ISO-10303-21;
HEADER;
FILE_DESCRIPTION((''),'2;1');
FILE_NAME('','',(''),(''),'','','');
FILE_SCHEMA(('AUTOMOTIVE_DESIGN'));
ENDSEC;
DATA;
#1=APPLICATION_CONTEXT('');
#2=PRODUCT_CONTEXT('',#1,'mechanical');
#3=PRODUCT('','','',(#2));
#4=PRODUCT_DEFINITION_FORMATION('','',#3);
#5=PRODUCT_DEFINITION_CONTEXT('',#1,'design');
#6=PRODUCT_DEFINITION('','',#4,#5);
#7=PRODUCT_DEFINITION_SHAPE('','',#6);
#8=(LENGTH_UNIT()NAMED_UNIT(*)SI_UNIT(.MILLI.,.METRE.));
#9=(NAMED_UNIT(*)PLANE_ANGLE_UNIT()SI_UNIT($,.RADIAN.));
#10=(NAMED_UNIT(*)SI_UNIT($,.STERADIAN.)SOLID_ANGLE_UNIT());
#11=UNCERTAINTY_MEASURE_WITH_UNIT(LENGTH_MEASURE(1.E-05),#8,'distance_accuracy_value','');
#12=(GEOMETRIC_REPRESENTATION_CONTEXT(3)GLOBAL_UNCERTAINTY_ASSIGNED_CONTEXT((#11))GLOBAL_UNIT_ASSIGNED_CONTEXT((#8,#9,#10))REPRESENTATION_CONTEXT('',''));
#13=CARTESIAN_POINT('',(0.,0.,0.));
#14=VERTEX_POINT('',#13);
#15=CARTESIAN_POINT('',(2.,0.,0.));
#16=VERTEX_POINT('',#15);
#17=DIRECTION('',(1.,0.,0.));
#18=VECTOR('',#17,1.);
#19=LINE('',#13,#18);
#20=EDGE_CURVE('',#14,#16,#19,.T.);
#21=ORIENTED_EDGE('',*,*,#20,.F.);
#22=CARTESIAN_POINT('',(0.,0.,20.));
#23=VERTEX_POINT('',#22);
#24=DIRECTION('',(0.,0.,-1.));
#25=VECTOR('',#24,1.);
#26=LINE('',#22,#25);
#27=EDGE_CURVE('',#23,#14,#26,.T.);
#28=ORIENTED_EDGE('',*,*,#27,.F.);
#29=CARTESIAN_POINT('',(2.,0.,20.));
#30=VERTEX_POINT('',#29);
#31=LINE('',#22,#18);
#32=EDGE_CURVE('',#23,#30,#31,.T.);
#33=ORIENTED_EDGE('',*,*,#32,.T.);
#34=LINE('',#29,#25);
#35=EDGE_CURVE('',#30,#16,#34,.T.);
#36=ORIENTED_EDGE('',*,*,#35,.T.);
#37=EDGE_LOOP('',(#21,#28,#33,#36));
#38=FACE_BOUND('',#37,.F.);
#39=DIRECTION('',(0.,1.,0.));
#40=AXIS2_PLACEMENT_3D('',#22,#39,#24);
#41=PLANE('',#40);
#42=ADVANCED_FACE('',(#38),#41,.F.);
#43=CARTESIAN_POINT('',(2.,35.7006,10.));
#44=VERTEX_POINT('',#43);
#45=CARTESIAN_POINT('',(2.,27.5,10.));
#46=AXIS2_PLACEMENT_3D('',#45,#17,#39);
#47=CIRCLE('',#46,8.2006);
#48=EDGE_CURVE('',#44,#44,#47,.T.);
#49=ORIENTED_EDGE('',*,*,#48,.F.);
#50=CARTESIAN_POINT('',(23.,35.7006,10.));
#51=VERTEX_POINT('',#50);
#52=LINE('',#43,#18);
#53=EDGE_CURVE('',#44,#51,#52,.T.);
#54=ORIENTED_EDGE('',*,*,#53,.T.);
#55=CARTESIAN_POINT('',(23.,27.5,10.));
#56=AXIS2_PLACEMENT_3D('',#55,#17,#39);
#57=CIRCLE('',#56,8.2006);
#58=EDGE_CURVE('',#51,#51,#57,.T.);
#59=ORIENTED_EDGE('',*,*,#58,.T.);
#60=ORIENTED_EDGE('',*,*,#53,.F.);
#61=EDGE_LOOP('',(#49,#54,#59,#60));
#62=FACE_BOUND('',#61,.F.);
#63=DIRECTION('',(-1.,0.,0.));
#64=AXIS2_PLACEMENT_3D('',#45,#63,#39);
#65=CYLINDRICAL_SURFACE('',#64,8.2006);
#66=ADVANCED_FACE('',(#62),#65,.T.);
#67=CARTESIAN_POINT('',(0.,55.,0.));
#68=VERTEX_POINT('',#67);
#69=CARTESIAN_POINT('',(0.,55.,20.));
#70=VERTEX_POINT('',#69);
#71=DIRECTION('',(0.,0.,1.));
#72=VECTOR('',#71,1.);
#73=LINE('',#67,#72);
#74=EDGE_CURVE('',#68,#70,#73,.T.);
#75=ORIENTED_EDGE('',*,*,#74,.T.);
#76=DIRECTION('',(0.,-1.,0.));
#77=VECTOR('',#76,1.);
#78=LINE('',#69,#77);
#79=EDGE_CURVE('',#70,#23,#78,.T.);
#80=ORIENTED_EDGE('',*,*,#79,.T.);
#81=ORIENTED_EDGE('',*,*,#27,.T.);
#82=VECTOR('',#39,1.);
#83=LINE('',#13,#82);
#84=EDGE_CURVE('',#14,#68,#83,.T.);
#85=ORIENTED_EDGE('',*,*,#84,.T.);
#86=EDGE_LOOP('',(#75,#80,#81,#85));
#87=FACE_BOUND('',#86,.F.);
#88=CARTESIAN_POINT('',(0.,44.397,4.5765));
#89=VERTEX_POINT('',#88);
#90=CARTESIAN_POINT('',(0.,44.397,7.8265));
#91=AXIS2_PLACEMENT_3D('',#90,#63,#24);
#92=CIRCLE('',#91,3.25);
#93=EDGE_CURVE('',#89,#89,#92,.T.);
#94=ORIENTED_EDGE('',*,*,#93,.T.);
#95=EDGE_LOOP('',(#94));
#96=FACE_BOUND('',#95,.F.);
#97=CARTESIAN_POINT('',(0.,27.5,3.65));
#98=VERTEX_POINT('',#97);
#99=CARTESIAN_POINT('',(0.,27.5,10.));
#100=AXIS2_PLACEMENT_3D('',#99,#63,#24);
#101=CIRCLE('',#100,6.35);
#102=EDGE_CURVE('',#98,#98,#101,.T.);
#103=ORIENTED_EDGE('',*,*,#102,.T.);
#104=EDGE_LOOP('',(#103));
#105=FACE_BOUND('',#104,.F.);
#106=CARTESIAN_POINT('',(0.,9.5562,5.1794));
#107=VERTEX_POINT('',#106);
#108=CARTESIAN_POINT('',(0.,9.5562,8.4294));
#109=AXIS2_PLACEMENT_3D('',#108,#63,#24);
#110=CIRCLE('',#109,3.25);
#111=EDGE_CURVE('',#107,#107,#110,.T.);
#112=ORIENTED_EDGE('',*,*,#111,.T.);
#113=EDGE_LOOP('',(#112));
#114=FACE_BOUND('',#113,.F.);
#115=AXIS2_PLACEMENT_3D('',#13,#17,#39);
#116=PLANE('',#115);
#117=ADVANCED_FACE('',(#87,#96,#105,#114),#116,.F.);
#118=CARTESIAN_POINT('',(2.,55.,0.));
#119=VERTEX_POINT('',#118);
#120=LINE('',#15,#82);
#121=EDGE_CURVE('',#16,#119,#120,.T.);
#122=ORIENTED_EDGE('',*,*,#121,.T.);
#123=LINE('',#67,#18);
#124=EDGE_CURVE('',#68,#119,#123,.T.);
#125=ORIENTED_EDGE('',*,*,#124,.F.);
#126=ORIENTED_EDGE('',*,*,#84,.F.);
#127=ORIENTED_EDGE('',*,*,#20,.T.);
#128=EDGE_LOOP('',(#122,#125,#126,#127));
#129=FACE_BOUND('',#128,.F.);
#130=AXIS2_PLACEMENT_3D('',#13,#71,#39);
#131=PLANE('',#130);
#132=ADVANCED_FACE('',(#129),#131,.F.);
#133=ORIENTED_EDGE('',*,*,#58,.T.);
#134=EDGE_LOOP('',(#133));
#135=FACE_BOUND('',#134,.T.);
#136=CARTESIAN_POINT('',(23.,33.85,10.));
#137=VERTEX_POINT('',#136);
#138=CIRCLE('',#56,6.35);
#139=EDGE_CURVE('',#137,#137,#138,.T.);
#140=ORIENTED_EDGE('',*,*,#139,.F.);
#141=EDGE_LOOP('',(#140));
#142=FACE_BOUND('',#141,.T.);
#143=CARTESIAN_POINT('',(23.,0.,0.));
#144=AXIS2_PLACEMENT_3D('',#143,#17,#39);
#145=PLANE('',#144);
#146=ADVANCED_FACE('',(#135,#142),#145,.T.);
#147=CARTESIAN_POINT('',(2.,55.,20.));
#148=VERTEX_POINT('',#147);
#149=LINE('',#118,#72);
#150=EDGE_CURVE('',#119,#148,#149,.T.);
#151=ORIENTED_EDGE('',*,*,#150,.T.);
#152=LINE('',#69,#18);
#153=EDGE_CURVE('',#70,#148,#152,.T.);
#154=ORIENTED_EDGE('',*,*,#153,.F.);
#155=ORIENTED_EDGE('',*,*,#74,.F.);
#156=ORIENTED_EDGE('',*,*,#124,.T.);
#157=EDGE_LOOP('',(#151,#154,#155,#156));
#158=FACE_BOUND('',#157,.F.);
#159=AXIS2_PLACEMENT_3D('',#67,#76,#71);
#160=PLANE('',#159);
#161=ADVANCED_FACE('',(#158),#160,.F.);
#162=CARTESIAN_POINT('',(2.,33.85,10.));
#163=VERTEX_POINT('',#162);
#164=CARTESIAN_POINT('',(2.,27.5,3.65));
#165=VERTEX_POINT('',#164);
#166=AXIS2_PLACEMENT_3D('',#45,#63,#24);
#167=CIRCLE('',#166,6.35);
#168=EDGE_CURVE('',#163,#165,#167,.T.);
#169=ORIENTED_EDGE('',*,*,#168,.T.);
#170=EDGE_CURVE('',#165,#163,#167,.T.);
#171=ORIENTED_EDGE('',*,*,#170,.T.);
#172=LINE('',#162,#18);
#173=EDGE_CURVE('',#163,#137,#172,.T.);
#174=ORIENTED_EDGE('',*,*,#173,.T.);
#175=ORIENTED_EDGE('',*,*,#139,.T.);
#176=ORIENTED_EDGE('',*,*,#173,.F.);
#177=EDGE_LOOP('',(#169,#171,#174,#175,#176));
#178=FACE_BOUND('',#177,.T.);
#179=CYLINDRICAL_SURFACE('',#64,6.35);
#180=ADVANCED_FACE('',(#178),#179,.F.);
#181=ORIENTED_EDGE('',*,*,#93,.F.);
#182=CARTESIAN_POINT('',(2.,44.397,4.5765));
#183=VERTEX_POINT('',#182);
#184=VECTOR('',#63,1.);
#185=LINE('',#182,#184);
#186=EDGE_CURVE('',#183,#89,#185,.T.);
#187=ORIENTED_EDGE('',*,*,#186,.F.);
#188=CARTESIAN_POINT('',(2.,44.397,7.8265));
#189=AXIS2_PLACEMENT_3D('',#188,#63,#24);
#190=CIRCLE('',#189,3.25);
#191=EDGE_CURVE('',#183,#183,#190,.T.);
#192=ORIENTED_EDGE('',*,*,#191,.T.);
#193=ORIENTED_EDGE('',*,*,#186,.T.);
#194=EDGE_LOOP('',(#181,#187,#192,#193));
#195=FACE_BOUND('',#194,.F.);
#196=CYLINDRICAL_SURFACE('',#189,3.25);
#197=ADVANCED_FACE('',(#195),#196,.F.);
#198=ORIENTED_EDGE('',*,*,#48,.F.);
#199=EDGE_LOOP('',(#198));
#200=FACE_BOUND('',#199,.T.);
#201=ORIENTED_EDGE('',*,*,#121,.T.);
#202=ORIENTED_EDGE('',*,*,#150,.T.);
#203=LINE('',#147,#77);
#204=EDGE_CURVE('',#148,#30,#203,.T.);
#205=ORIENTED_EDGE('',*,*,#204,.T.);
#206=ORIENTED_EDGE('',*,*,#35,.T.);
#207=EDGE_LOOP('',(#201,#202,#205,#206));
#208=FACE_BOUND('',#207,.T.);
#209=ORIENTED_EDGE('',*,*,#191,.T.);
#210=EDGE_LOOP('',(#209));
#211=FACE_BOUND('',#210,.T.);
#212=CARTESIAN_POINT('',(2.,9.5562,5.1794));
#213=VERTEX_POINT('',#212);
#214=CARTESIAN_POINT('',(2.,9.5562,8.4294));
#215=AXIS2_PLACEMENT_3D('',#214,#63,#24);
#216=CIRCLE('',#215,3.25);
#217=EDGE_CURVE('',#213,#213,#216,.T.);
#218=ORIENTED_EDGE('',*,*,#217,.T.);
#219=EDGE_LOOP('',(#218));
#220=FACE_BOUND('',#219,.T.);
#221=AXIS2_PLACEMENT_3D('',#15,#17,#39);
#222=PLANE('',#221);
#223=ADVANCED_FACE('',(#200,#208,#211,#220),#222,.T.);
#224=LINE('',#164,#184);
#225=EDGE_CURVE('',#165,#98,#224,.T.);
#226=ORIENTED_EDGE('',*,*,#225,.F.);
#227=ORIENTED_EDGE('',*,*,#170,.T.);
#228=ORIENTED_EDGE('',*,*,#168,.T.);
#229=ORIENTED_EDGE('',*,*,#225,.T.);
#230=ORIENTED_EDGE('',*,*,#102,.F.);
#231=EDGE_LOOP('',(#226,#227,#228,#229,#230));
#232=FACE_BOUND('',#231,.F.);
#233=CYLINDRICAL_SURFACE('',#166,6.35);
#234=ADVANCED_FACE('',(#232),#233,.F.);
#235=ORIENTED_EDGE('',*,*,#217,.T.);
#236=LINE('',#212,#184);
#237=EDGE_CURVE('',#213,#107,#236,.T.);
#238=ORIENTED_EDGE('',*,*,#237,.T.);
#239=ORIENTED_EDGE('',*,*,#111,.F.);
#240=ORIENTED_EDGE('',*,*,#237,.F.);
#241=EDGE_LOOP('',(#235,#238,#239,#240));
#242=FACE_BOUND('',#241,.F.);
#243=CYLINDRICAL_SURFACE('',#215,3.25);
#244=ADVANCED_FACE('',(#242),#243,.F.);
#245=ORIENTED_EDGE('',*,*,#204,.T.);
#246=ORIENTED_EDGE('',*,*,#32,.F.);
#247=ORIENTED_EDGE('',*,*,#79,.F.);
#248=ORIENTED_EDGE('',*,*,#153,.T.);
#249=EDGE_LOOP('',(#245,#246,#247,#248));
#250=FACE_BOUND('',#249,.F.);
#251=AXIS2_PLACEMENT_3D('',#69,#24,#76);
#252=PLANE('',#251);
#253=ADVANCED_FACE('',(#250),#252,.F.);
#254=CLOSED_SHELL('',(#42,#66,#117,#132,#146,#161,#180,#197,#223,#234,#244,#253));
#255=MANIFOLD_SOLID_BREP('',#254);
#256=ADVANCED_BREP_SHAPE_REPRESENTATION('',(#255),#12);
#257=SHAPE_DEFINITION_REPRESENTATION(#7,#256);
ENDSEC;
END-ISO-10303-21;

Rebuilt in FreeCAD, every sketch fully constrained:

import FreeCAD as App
import Part
import Sketcher
Q = App.Units.Quantity


def add_polygon(sketch, points):
    """Adds a closed chain of lines whose ends are joined by coincident constraints."""
    first, n = sketch.GeometryCount, len(points)
    for a, b in zip(points, points[1:] + points[:1]):
        sketch.addGeometry(Part.LineSegment(App.Vector(*a, 0), App.Vector(*b, 0)), False)
    for i in range(n):
        sketch.addConstraint(Sketcher.Constraint("Coincident", first + i, 2, first + (i + 1) % n, 1))

doc = App.newDocument("Part")
body = doc.addObject("PartDesign::Body", "Body")

# Sketch on YZ plane
sketch1 = body.newObject("Sketcher::SketchObject", "Sketch")
sketch1.AttachmentSupport = (doc.getObject("YZ_Plane"), [""])
sketch1.MapMode = "FlatFace"
add_polygon(sketch1, [(0, 20), (0, 0), (55, 0), (55, 20)])  # lines 0-3
sketch1.addConstraint([
    Sketcher.Constraint("Vertical", 0),
    Sketcher.Constraint("Horizontal", 1),
    Sketcher.Constraint("Vertical", 2),
    Sketcher.Constraint("Horizontal", 3),
    Sketcher.Constraint("Coincident", 0, 2, -1, 1),
    Sketcher.Constraint("DistanceX", 1, 1, 1, 2, Q("55 mm")),
    Sketcher.Constraint("DistanceY", 0, 2, 0, 1, Q("20 mm")),
])
pad1 = body.newObject("PartDesign::Pad", "Pad")
pad1.Profile = sketch1
pad1.Length = 2

# Sketch on YZ plane
sketch2 = body.newObject("Sketcher::SketchObject", "Sketch001")
sketch2.AttachmentSupport = (doc.getObject("YZ_Plane"), [""])
sketch2.MapMode = "FlatFace"
sketch2.AttachmentOffset = App.Placement(App.Vector(0, 0, 2), App.Rotation())
sketch2.addGeometry(Part.Circle(App.Vector(28, 10, 0), App.Vector(0, 0, 1), 6), False)
sketch2.addConstraint([
    Sketcher.Constraint("Diameter", 0, Q("12.7 mm")),
    Sketcher.Constraint("DistanceY", -1, 1, 0, 3, Q("10 mm")),
    Sketcher.Constraint("DistanceX", -1, 1, 0, 3, Q("27.5 mm")),
])
doc.recompute()
hole = body.newObject("PartDesign::Hole", "Hole")
hole.Profile = sketch2
hole.ThreadType = "None"
hole.Diameter = 12.7
hole.DepthType = "Dimension"
hole.Depth = 8
hole.DrillPoint = "Angled"
hole.DrillPointAngle = 118

# Sketch on YZ plane
sketch3 = body.newObject("Sketcher::SketchObject", "Sketch002")
sketch3.AttachmentSupport = (doc.getObject("YZ_Plane"), [""])
sketch3.MapMode = "FlatFace"
sketch3.AttachmentOffset = App.Placement(App.Vector(0, 0, 2), App.Rotation())
sketch3.addGeometry([
    Part.Circle(App.Vector(28, 10, 0), App.Vector(0, 0, 1), 8),
    Part.Circle(App.Vector(28, 10, 0), App.Vector(0, 0, 1), 6),
], False)
sketch3.addConstraint([
    Sketcher.Constraint("Coincident", 1, 3, 0, 3),
    Sketcher.Constraint("Diameter", 1, Q("12.7 mm")),
    Sketcher.Constraint("DistanceY", -1, 1, 0, 3, Q("10 mm")),
    Sketcher.Constraint("Diameter", 0, Q("16.4012 mm")),
    Sketcher.Constraint("DistanceX", -1, 1, 0, 3, Q("27.5 mm")),
])
pad2 = body.newObject("PartDesign::Pad", "Pad001")
pad2.Profile = sketch3
pad2.Length = 21

# Sketch on YZ plane
sketch4 = body.newObject("Sketcher::SketchObject", "Sketch003")
sketch4.AttachmentSupport = (doc.getObject("YZ_Plane"), [""])
sketch4.MapMode = "FlatFace"
sketch4.AttachmentOffset = App.Placement(App.Vector(0, 0, 2), App.Rotation())
sketch4.addGeometry(Part.Circle(App.Vector(9.6, 8.4, 0), App.Vector(0, 0, 1), 3.2), False)
sketch4.addConstraint([
    Sketcher.Constraint("Diameter", 0, Q("6.5 mm")),
    Sketcher.Constraint("DistanceX", -1, 1, 0, 3, Q("9.5562 mm")),
    Sketcher.Constraint("DistanceY", -1, 1, 0, 3, Q("8.4294 mm")),
])
doc.recompute()
hole2 = body.newObject("PartDesign::Hole", "Hole001")
hole2.Profile = sketch4
hole2.ThreadType = "None"
hole2.Diameter = 6.5
hole2.DepthType = "Dimension"
hole2.Depth = 8
hole2.DrillPoint = "Angled"
hole2.DrillPointAngle = 118

# Sketch on YZ plane
sketch5 = body.newObject("Sketcher::SketchObject", "Sketch004")
sketch5.AttachmentSupport = (doc.getObject("YZ_Plane"), [""])
sketch5.MapMode = "FlatFace"
sketch5.AttachmentOffset = App.Placement(App.Vector(0, 0, 2), App.Rotation())
sketch5.addGeometry(Part.Circle(App.Vector(44.4, 7.8, 0), App.Vector(0, 0, 1), 3.2), False)
sketch5.addConstraint([
    Sketcher.Constraint("Diameter", 0, Q("6.5 mm")),
    Sketcher.Constraint("DistanceX", -1, 1, 0, 3, Q("44.397 mm")),
    Sketcher.Constraint("DistanceY", -1, 1, 0, 3, Q("7.8265 mm")),
])
doc.recompute()
hole3 = body.newObject("PartDesign::Hole", "Hole002")
hole3.Profile = sketch5
hole3.ThreadType = "None"
hole3.Diameter = 6.5
hole3.DepthType = "Dimension"
hole3.Depth = 8
hole3.DrillPoint = "Angled"
hole3.DrillPointAngle = 118

doc.recompute()
